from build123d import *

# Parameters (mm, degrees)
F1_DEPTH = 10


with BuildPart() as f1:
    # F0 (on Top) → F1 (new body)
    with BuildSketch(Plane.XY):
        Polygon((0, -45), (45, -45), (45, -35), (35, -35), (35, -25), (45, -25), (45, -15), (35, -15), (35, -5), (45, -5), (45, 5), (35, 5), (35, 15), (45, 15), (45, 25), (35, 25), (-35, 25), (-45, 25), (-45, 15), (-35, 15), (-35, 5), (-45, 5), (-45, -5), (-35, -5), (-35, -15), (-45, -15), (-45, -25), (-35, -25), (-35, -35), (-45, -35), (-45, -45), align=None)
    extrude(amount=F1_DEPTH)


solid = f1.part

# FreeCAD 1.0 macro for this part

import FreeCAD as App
import Part
import Sketcher
from FreeCAD import Vector

doc = App.newDocument("Part")
body = doc.addObject("PartDesign::Body", "Body")

# Sketch on XY plane
sketch1 = body.newObject("Sketcher::SketchObject", "Sketch")
sketch1.AttachmentSupport = (doc.getObject("XY_Plane"), [""])
sketch1.MapMode = "FlatFace"
sketch1.addGeometry([
    Part.LineSegment(Vector(45, -45, 0), Vector(45, -35, 0)),  # 0
    Part.LineSegment(Vector(45, -35, 0), Vector(35, -35, 0)),  # 1
    Part.LineSegment(Vector(35, -35, 0), Vector(35, -25, 0)),  # 2
    Part.LineSegment(Vector(35, -25, 0), Vector(45, -25, 0)),  # 3
    Part.LineSegment(Vector(45, -25, 0), Vector(45, -15, 0)),  # 4
    Part.LineSegment(Vector(45, -15, 0), Vector(35, -15, 0)),  # 5
    Part.LineSegment(Vector(35, -15, 0), Vector(35, -5, 0)),  # 6
    Part.LineSegment(Vector(35, -5, 0), Vector(45, -5, 0)),  # 7
    Part.LineSegment(Vector(45, -5, 0), Vector(45, 5, 0)),  # 8
    Part.LineSegment(Vector(45, 5, 0), Vector(35, 5, 0)),  # 9
    Part.LineSegment(Vector(35, 5, 0), Vector(35, 15, 0)),  # 10
    Part.LineSegment(Vector(35, 15, 0), Vector(45, 15, 0)),  # 11
    Part.LineSegment(Vector(45, 15, 0), Vector(45, 25, 0)),  # 12
    Part.LineSegment(Vector(45, 25, 0), Vector(-45, 25, 0)),  # 13
    Part.LineSegment(Vector(-45, 25, 0), Vector(-45, 15, 0)),  # 14
    Part.LineSegment(Vector(-45, 15, 0), Vector(-35, 15, 0)),  # 15
    Part.LineSegment(Vector(-35, 15, 0), Vector(-35, 5, 0)),  # 16
    Part.LineSegment(Vector(-35, 5, 0), Vector(-45, 5, 0)),  # 17
    Part.LineSegment(Vector(-45, 5, 0), Vector(-45, -5, 0)),  # 18
    Part.LineSegment(Vector(-45, -5, 0), Vector(-35, -5, 0)),  # 19
    Part.LineSegment(Vector(-35, -5, 0), Vector(-35, -15, 0)),  # 20
    Part.LineSegment(Vector(-35, -15, 0), Vector(-45, -15, 0)),  # 21
    Part.LineSegment(Vector(-45, -15, 0), Vector(-45, -25, 0)),  # 22
    Part.LineSegment(Vector(-45, -25, 0), Vector(-35, -25, 0)),  # 23
    Part.LineSegment(Vector(-35, -25, 0), Vector(-35, -35, 0)),  # 24
    Part.LineSegment(Vector(-35, -35, 0), Vector(-45, -35, 0)),  # 25
    Part.LineSegment(Vector(-45, -35, 0), Vector(-45, -45, 0)),  # 26
    Part.LineSegment(Vector(-45, -45, 0), Vector(45, -45, 0)),  # 27
], False)
sketch1.addConstraint([
    Sketcher.Constraint("Coincident", 0, 2, 1, 1),
    Sketcher.Constraint("Coincident", 1, 2, 2, 1),
    Sketcher.Constraint("Coincident", 2, 2, 3, 1),
    Sketcher.Constraint("Coincident", 3, 2, 4, 1),
    Sketcher.Constraint("Coincident", 4, 2, 5, 1),
    Sketcher.Constraint("Coincident", 5, 2, 6, 1),
    Sketcher.Constraint("Coincident", 6, 2, 7, 1),
    Sketcher.Constraint("Coincident", 7, 2, 8, 1),
    Sketcher.Constraint("Coincident", 8, 2, 9, 1),
    Sketcher.Constraint("Coincident", 9, 2, 10, 1),
    Sketcher.Constraint("Coincident", 10, 2, 11, 1),
    Sketcher.Constraint("Coincident", 11, 2, 12, 1),
    Sketcher.Constraint("Coincident", 12, 2, 13, 1),
    Sketcher.Constraint("Coincident", 13, 2, 14, 1),
    Sketcher.Constraint("Coincident", 14, 2, 15, 1),
    Sketcher.Constraint("Coincident", 15, 2, 16, 1),
    Sketcher.Constraint("Coincident", 16, 2, 17, 1),
    Sketcher.Constraint("Coincident", 17, 2, 18, 1),
    Sketcher.Constraint("Coincident", 18, 2, 19, 1),
    Sketcher.Constraint("Coincident", 19, 2, 20, 1),
    Sketcher.Constraint("Coincident", 20, 2, 21, 1),
    Sketcher.Constraint("Coincident", 21, 2, 22, 1),
    Sketcher.Constraint("Coincident", 22, 2, 23, 1),
    Sketcher.Constraint("Coincident", 23, 2, 24, 1),
    Sketcher.Constraint("Coincident", 24, 2, 25, 1),
    Sketcher.Constraint("Coincident", 25, 2, 26, 1),
    Sketcher.Constraint("Coincident", 26, 2, 27, 1),
    Sketcher.Constraint("Coincident", 27, 2, 0, 1),
    Sketcher.Constraint("Vertical", 0),
    Sketcher.Constraint("Horizontal", 1),
    Sketcher.Constraint("Vertical", 2),
    Sketcher.Constraint("Horizontal", 3),
    Sketcher.Constraint("Vertical", 4),
    Sketcher.Constraint("Horizontal", 5),
    Sketcher.Constraint("Vertical", 6),
    Sketcher.Constraint("Horizontal", 7),
    Sketcher.Constraint("Vertical", 8),
    Sketcher.Constraint("Horizontal", 9),
    Sketcher.Constraint("Vertical", 10),
    Sketcher.Constraint("Horizontal", 11),
    Sketcher.Constraint("Vertical", 12),
    Sketcher.Constraint("Horizontal", 13),
    Sketcher.Constraint("Vertical", 14),
    Sketcher.Constraint("Horizontal", 15),
    Sketcher.Constraint("Vertical", 16),
    Sketcher.Constraint("Horizontal", 17),
    Sketcher.Constraint("Vertical", 18),
    Sketcher.Constraint("Horizontal", 19),
    Sketcher.Constraint("Vertical", 20),
    Sketcher.Constraint("Horizontal", 21),
    Sketcher.Constraint("Vertical", 22),
    Sketcher.Constraint("Horizontal", 23),
    Sketcher.Constraint("Vertical", 24),
    Sketcher.Constraint("Horizontal", 25),
    Sketcher.Constraint("Vertical", 26),
    Sketcher.Constraint("Horizontal", 27),
    Sketcher.Constraint("Symmetric", 3, 2, 13, 2, -1, 1),
    Sketcher.Constraint("Symmetric", 5, 2, 15, 2, -1, 1),
    Sketcher.Constraint("Symmetric", 7, 2, 17, 2, -1, 1),
    Sketcher.Constraint("Symmetric", 9, 2, 19, 2, -1, 1),
    Sketcher.Constraint("Symmetric", 11, 2, 21, 2, -1, 1),
    Sketcher.Constraint("Symmetric", 11, 2, 14, 2, -2),
    Sketcher.Constraint("Symmetric", 9, 2, 16, 2, -2),
    Sketcher.Constraint("Symmetric", 2, 2, 23, 2, -2),
    Sketcher.Constraint("Symmetric", 0, 2, 25, 2, -2),
    Sketcher.Constraint("Vertical", 0, 2, 3, 2),
    Sketcher.Constraint("Vertical", 2, 2, 5, 2),
    Sketcher.Constraint("Vertical", 4, 2, 7, 2),
    Sketcher.Constraint("Equal", 25, 0),
    Sketcher.Constraint("Equal", 0, 2),
    Sketcher.Constraint("Equal", 2, 4),
    Sketcher.Constraint("Equal", 4, 6),
    Sketcher.Constraint("Equal", 6, 8),
    Sketcher.Constraint("DistanceX", 1, 2, 1, 1, 10.0),
    Sketcher.Constraint("DistanceX", 13, 2, 13, 1, 90.0),
])
pad1 = body.newObject("PartDesign::Pad", "Pad")
pad1.Profile = sketch1
pad1.Length = 10

doc.recompute()
